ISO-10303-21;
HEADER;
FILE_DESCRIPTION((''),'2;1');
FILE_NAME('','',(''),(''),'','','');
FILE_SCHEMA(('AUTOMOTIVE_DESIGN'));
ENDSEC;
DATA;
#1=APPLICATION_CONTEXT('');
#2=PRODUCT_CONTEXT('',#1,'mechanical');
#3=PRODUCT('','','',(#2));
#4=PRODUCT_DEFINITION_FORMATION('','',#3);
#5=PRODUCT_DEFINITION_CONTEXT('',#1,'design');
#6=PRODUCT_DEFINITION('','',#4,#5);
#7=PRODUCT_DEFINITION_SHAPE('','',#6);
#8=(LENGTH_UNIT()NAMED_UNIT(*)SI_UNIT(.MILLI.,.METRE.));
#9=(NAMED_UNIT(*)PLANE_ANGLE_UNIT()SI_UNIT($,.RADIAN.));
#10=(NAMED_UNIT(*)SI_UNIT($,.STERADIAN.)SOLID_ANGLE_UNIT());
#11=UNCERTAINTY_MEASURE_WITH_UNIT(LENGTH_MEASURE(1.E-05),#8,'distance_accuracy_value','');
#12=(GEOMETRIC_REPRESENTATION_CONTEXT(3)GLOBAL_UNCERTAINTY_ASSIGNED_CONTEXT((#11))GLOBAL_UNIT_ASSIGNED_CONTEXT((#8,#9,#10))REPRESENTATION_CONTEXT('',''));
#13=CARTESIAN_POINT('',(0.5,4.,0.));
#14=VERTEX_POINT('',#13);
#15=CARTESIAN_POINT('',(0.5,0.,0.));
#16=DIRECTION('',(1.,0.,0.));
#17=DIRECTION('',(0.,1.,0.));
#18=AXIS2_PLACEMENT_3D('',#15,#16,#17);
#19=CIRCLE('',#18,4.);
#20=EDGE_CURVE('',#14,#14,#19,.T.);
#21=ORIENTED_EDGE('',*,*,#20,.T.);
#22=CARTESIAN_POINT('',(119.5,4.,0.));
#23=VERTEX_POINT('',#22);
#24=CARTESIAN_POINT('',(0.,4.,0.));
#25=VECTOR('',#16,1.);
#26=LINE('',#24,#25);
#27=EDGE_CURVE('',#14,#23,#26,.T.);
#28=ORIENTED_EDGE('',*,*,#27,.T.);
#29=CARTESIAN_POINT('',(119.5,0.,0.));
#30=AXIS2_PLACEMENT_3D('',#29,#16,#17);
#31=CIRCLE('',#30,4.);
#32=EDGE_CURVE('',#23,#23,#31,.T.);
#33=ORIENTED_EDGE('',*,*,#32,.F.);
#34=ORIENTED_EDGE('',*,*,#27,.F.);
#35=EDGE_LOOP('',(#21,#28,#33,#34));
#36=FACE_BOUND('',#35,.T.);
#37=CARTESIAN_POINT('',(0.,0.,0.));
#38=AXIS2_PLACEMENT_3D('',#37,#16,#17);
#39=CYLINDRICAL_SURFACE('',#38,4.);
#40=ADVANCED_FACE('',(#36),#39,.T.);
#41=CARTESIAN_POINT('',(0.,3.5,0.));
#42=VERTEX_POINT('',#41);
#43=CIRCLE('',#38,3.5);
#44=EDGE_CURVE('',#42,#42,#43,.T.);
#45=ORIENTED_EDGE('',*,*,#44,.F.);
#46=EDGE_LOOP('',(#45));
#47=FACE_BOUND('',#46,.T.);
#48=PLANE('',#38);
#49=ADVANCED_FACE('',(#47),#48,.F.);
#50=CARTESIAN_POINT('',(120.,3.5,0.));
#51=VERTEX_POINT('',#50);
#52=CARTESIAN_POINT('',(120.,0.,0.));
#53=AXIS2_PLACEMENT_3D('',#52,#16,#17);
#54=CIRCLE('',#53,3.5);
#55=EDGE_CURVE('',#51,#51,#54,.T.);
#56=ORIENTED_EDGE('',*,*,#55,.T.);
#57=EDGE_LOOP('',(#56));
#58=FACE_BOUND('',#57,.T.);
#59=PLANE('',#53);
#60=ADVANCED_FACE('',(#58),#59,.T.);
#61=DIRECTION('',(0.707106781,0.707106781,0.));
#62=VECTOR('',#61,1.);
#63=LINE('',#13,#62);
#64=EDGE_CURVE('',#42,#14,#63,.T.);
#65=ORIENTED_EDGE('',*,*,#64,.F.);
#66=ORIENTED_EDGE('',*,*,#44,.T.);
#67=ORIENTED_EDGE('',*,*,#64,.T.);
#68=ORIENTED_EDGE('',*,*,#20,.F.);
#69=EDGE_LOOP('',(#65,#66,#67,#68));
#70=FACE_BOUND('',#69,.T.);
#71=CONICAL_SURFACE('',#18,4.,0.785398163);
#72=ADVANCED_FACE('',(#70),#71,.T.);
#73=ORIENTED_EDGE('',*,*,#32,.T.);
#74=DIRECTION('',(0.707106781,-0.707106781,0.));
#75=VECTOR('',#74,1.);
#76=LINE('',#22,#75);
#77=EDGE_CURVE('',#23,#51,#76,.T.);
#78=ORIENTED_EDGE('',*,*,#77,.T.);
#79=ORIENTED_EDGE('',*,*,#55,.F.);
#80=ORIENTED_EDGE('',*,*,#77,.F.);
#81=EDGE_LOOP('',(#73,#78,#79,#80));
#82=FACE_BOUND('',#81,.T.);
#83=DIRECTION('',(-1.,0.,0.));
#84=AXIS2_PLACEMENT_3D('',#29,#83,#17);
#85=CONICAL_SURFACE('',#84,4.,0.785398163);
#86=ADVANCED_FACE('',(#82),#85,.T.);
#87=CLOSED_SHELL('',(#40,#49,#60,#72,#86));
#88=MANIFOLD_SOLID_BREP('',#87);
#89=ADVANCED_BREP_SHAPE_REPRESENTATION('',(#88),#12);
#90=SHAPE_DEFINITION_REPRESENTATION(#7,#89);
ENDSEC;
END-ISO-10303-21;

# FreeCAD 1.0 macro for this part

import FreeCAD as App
import Part
import Sketcher
Q = App.Units.Quantity


def edges_at(feature, points):
    """Names of the edges that pass closest to the given points."""
    edges = feature.Shape.Edges
    near = lambda p: min(range(len(edges)), key=lambda i: edges[i].distToShape(Part.Vertex(*p))[0])
    return sorted({f"Edge{near(p) + 1}" for p in points})

doc = App.newDocument("Part")
body = doc.addObject("PartDesign::Body", "Body")

# Sketch on XY plane
sketch1 = body.newObject("Sketcher::SketchObject", "Sketch")
sketch1.AttachmentSupport = (doc.getObject("XY_Plane"), [""])
sketch1.MapMode = "FlatFace"
sketch1.addGeometry([
    Part.LineSegment(App.Vector(0, 4, 0), App.Vector(0, 0, 0)),
    Part.LineSegment(App.Vector(0, 0, 0), App.Vector(120, 0, 0)),
    Part.LineSegment(App.Vector(120, 0, 0), App.Vector(120, 4, 0)),
    Part.LineSegment(App.Vector(120, 4, 0), App.Vector(0, 4, 0)),
], False)
sketch1.addConstraint([
    Sketcher.Constraint("Coincident", 0, 2, 1, 1),
    Sketcher.Constraint("Coincident", 1, 2, 2, 1),
    Sketcher.Constraint("Coincident", 2, 2, 3, 1),
    Sketcher.Constraint("Coincident", 3, 2, 0, 1),
    Sketcher.Constraint("Vertical", 0),
    Sketcher.Constraint("Horizontal", 1),
    Sketcher.Constraint("Vertical", 2),
    Sketcher.Constraint("Horizontal", 3),
    Sketcher.Constraint("Coincident", 0, 2, -1, 1),
    Sketcher.Constraint("DistanceX", 1, 1, 1, 2, Q("120 mm")),
    Sketcher.Constraint("DistanceY", 0, 2, 0, 1, Q("4 mm")),
])
revolution = body.newObject("PartDesign::Revolution", "Revolution")
revolution.Profile = sketch1
revolution.ReferenceAxis = (sketch1, ["H_Axis"])
revolution.Angle = 360
doc.recompute()

chamfer = body.newObject("PartDesign::Chamfer", "Chamfer")
chamfer.Base = (revolution, edges_at(revolution, [(0, -4, 0)]))
chamfer.Size = 0.5
doc.recompute()

chamfer2 = body.newObject("PartDesign::Chamfer", "Chamfer001")
chamfer2.Base = (chamfer, edges_at(chamfer, [(120, -4, 0)]))
chamfer2.Size = 0.5

doc.recompute()
